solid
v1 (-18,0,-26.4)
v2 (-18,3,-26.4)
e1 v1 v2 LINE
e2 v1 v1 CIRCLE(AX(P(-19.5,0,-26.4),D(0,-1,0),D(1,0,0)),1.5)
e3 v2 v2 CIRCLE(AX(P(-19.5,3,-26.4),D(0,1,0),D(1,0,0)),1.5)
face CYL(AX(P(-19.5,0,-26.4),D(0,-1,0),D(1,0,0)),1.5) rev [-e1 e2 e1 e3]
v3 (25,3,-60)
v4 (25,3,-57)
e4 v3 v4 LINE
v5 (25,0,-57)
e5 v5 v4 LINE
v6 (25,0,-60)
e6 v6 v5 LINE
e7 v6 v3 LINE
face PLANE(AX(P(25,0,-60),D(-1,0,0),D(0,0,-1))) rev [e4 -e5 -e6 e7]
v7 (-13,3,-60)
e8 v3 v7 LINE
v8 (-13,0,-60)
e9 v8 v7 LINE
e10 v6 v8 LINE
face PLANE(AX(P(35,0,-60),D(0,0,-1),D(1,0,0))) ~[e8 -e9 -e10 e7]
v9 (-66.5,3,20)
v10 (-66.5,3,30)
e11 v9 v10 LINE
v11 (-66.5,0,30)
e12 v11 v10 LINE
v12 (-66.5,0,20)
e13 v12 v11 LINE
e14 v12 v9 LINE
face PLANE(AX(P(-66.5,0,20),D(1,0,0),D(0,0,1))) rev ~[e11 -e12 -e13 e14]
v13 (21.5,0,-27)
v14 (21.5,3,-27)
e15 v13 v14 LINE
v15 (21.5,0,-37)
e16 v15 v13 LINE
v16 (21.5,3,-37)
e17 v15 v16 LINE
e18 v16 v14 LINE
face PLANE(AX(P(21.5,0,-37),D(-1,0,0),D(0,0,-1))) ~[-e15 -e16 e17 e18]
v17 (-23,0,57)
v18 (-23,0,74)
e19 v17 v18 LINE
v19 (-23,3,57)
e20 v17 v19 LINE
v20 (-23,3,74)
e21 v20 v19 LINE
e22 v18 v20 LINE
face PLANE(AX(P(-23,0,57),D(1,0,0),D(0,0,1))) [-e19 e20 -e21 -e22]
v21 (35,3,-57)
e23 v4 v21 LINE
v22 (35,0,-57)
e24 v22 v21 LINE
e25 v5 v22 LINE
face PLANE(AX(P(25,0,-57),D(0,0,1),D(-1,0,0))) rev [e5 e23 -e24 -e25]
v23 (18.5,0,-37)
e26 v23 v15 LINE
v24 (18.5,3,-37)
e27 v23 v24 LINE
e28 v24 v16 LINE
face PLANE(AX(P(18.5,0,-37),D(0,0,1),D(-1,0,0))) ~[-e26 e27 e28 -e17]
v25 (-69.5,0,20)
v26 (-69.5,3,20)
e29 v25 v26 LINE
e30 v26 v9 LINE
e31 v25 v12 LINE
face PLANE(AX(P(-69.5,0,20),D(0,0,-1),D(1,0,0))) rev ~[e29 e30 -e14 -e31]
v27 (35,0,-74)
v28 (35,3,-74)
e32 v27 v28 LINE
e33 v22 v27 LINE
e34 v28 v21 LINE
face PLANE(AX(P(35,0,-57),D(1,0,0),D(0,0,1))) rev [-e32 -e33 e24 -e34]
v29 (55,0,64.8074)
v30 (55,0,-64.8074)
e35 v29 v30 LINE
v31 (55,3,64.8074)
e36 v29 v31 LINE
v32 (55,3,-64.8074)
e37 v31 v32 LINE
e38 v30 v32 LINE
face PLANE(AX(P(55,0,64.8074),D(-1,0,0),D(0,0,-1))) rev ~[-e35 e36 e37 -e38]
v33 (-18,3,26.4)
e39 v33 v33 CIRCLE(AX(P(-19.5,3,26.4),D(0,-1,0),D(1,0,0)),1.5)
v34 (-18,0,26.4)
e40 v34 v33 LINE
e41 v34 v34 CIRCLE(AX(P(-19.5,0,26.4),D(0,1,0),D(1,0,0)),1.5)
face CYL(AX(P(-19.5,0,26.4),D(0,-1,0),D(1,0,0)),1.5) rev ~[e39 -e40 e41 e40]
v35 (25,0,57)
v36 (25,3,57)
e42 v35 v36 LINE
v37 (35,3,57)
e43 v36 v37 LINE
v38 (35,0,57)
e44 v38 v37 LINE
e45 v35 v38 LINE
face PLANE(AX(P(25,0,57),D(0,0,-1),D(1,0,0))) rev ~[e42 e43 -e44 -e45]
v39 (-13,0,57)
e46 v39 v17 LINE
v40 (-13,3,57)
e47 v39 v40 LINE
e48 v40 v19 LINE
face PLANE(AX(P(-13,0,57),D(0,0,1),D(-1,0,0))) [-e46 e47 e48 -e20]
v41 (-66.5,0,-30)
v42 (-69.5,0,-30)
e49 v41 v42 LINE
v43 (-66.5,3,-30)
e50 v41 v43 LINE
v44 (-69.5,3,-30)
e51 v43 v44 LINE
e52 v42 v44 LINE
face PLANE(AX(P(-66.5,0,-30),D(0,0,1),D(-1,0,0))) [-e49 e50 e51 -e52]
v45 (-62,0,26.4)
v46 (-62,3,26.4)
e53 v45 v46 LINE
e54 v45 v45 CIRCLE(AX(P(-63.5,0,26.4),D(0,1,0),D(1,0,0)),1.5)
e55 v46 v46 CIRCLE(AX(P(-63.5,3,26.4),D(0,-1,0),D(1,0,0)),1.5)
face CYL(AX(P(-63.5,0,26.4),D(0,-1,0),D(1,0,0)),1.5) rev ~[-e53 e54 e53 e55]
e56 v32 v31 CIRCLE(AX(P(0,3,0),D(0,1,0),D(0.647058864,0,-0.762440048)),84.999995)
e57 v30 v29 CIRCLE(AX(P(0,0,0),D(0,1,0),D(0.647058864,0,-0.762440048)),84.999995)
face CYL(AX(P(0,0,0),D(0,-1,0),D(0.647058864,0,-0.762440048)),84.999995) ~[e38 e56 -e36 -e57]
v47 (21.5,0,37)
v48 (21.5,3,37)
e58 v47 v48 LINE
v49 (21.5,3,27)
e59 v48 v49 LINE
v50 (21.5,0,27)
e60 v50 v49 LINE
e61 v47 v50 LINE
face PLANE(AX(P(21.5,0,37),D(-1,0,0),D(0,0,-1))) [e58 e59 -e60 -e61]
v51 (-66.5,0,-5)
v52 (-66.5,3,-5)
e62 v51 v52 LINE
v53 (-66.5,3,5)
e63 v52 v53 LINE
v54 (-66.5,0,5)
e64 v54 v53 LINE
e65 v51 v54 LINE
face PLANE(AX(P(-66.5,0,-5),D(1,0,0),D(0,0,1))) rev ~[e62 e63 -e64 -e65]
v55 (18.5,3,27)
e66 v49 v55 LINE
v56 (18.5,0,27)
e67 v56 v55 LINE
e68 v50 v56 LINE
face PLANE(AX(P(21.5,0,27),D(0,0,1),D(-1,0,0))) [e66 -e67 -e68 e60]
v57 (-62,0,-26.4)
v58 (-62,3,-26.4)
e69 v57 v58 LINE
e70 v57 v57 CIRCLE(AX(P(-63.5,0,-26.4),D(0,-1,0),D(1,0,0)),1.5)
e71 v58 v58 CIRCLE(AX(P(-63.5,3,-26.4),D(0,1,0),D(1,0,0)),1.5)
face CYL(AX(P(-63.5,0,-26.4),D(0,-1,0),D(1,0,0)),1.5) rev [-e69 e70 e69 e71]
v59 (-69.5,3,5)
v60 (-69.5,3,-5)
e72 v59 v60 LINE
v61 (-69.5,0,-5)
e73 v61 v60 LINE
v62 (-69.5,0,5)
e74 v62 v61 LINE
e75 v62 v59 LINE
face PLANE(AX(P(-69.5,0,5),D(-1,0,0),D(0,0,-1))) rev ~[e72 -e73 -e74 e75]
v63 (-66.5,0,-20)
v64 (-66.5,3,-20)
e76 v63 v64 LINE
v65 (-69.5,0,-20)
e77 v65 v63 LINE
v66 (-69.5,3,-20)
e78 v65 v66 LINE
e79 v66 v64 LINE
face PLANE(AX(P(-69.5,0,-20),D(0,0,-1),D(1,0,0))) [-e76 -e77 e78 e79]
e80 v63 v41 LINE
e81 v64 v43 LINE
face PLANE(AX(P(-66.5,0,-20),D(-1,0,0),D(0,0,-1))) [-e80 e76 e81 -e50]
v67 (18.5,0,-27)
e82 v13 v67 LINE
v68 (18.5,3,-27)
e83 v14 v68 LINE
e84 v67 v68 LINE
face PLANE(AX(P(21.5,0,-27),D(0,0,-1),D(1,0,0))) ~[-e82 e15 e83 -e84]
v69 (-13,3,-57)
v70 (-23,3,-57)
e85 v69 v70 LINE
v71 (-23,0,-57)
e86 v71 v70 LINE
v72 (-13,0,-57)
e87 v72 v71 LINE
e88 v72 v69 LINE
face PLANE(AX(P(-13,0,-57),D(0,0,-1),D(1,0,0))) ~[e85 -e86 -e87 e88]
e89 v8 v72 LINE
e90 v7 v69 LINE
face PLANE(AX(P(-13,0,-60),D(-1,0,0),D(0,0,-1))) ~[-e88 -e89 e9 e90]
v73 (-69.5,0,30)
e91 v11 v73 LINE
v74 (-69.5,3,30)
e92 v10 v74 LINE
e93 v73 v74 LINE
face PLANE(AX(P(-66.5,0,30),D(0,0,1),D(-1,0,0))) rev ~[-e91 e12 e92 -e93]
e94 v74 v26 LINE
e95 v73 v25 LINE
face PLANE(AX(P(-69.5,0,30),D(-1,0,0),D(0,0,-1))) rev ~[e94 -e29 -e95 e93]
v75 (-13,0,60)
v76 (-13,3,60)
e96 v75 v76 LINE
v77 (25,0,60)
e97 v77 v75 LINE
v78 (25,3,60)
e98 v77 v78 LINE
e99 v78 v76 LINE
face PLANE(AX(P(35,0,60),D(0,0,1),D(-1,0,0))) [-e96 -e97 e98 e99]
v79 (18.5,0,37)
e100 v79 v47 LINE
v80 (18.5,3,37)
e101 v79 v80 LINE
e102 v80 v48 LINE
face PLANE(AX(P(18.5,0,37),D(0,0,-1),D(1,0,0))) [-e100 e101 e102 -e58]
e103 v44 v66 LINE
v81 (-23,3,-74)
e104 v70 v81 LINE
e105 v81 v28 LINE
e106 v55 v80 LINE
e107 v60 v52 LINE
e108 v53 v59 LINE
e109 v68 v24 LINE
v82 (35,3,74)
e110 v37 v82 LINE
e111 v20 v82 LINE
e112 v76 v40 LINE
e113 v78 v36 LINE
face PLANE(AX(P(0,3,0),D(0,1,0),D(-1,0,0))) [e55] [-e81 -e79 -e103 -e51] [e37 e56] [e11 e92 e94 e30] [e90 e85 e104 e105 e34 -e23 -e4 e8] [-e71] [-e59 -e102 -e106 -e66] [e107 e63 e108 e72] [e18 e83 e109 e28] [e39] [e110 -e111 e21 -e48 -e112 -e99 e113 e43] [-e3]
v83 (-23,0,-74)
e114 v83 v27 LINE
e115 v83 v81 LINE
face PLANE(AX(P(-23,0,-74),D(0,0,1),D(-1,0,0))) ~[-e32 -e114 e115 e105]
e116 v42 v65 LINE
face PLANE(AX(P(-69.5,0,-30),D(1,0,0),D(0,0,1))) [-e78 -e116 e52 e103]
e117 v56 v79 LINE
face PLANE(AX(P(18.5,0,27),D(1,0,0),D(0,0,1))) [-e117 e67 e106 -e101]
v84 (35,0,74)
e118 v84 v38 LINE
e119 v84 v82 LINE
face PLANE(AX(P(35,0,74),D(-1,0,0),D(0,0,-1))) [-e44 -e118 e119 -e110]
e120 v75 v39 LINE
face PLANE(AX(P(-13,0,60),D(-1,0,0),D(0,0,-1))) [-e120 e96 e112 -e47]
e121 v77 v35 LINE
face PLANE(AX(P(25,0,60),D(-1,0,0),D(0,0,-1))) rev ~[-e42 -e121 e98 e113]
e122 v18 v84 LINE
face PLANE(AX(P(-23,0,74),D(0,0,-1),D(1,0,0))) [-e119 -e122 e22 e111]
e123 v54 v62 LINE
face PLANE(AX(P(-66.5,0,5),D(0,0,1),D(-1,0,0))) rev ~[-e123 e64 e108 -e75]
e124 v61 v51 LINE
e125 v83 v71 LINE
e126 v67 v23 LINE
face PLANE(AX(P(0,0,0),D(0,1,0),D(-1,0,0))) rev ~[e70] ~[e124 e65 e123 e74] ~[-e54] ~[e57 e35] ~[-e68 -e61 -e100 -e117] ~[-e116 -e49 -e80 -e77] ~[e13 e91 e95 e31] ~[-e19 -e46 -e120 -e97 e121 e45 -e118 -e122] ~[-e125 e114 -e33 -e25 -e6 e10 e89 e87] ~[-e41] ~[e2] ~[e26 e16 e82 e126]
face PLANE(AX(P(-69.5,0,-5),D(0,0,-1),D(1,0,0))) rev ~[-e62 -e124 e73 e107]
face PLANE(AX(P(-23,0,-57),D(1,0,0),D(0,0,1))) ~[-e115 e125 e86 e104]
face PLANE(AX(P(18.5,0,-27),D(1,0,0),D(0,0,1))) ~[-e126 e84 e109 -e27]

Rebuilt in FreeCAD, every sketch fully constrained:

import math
import FreeCAD as App
import Part
import Sketcher
Q = App.Units.Quantity

doc = App.newDocument("Part")
body = doc.addObject("PartDesign::Body", "Body")

sketch1 = body.newObject("Sketcher::SketchObject", "Sketch")
sketch1.AttachmentSupport = (doc.getObject("XZ_Plane"), [""])
sketch1.MapMode = "FlatFace"
sketch1.addGeometry(Part.LineSegment(App.Vector(55, 65, 0), App.Vector(55, -65, 0)), False)
sketch1.addGeometry(Part.ArcOfCircle(Part.Circle(App.Vector(0, 0, 0), App.Vector(0, 0, 1), 85), math.radians(50), math.radians(310)), False)
sketch1.addConstraint(Sketcher.Constraint("Coincident", 0, 1, 1, 1))
sketch1.addConstraint(Sketcher.Constraint("Coincident", 1, 2, 0, 2))
sketch1.addConstraint(Sketcher.Constraint("Vertical", 0))
sketch1.addConstraint(Sketcher.Constraint("Coincident", 1, 3, -1, 1))
sketch1.addConstraint(Sketcher.Constraint("Radius", 1, Q("85 mm")))
sketch1.addConstraint(Sketcher.Constraint("DistanceX", -1, 1, 0, 1, Q("55 mm")))
pad1 = body.newObject("PartDesign::Pad", "Pad")
pad1.Profile = sketch1
pad1.Length = 3
pad1.Reversed = True

sketch2 = body.newObject("Sketcher::SketchObject", "Sketch001")
sketch2.AttachmentSupport = (doc.getObject("XZ_Plane"), [""])
sketch2.MapMode = "FlatFace"
sketch2.addGeometry(Part.LineSegment(App.Vector(35, 74, 0), App.Vector(-23, 74, 0)), False)
sketch2.addGeometry(Part.LineSegment(App.Vector(-23, 74, 0), App.Vector(-23, 60, 0)), False)
sketch2.addGeometry(Part.LineSegment(App.Vector(-23, 60, 0), App.Vector(35, 60, 0)), False)
sketch2.addGeometry(Part.LineSegment(App.Vector(35, 60, 0), App.Vector(35, 74, 0)), False)
sketch2.addConstraint(Sketcher.Constraint("Coincident", 0, 2, 1, 1))
sketch2.addConstraint(Sketcher.Constraint("Coincident", 1, 2, 2, 1))
sketch2.addConstraint(Sketcher.Constraint("Coincident", 2, 2, 3, 1))
sketch2.addConstraint(Sketcher.Constraint("Coincident", 3, 2, 0, 1))
sketch2.addConstraint(Sketcher.Constraint("Horizontal", 0))
sketch2.addConstraint(Sketcher.Constraint("Vertical", 1))
sketch2.addConstraint(Sketcher.Constraint("Horizontal", 2))
sketch2.addConstraint(Sketcher.Constraint("Vertical", 3))
sketch2.addConstraint(Sketcher.Constraint("DistanceX", 0, 2, 0, 1, Q("58 mm")))
sketch2.addConstraint(Sketcher.Constraint("DistanceY", 1, 2, 1, 1, Q("14 mm")))
sketch2.addConstraint(Sketcher.Constraint("DistanceX", 0, 2, -1, 1, Q("23 mm")))
sketch2.addConstraint(Sketcher.Constraint("DistanceY", -1, 1, 0, 2, Q("74 mm")))
pocket1 = body.newObject("PartDesign::Pocket", "Pocket")
pocket1.Profile = sketch2
pocket1.Length = 3

sketch3 = body.newObject("Sketcher::SketchObject", "Sketch002")
sketch3.AttachmentSupport = (doc.getObject("XZ_Plane"), [""])
sketch3.MapMode = "FlatFace"
sketch3.addGeometry(Part.LineSegment(App.Vector(-13, 60, 0), App.Vector(-23, 60, 0)), False)
sketch3.addGeometry(Part.LineSegment(App.Vector(-23, 60, 0), App.Vector(-23, 57, 0)), False)
sketch3.addGeometry(Part.LineSegment(App.Vector(-23, 57, 0), App.Vector(-13, 57, 0)), False)
sketch3.addGeometry(Part.LineSegment(App.Vector(-13, 57, 0), App.Vector(-13, 60, 0)), False)
sketch3.addGeometry(Part.LineSegment(App.Vector(35, 57, 0), App.Vector(35, 60, 0)), False)
sketch3.addGeometry(Part.LineSegment(App.Vector(35, 60, 0), App.Vector(25, 60, 0)), False)
sketch3.addGeometry(Part.LineSegment(App.Vector(25, 60, 0), App.Vector(25, 57, 0)), False)
sketch3.addGeometry(Part.LineSegment(App.Vector(25, 57, 0), App.Vector(35, 57, 0)), False)
sketch3.addConstraint(Sketcher.Constraint("Coincident", 0, 2, 1, 1))
sketch3.addConstraint(Sketcher.Constraint("Coincident", 1, 2, 2, 1))
sketch3.addConstraint(Sketcher.Constraint("Coincident", 2, 2, 3, 1))
sketch3.addConstraint(Sketcher.Constraint("Coincident", 3, 2, 0, 1))
sketch3.addConstraint(Sketcher.Constraint("Coincident", 4, 2, 5, 1))
sketch3.addConstraint(Sketcher.Constraint("Coincident", 5, 2, 6, 1))
sketch3.addConstraint(Sketcher.Constraint("Coincident", 6, 2, 7, 1))
sketch3.addConstraint(Sketcher.Constraint("Coincident", 7, 2, 4, 1))
sketch3.addConstraint(Sketcher.Constraint("Horizontal", 0))
sketch3.addConstraint(Sketcher.Constraint("Vertical", 1))
sketch3.addConstraint(Sketcher.Constraint("Horizontal", 2))
sketch3.addConstraint(Sketcher.Constraint("Vertical", 3))
sketch3.addConstraint(Sketcher.Constraint("Vertical", 4))
sketch3.addConstraint(Sketcher.Constraint("Horizontal", 5))
sketch3.addConstraint(Sketcher.Constraint("Vertical", 6))
sketch3.addConstraint(Sketcher.Constraint("Horizontal", 7))
sketch3.addConstraint(Sketcher.Constraint("Horizontal", 3, 2, 4, 2))
sketch3.addConstraint(Sketcher.Constraint("Horizontal", 2, 2, 6, 2))
sketch3.addConstraint(Sketcher.Constraint("Equal", 2, 5))
sketch3.addConstraint(Sketcher.Constraint("DistanceX", 0, 2, 0, 1, Q("10 mm")))
sketch3.addConstraint(Sketcher.Constraint("DistanceY", 1, 2, 1, 1, Q("3 mm")))
sketch3.addConstraint(Sketcher.Constraint("DistanceX", 0, 2, -1, 1, Q("23 mm")))
sketch3.addConstraint(Sketcher.Constraint("DistanceY", -1, 1, 0, 2, Q("60 mm")))
sketch3.addConstraint(Sketcher.Constraint("DistanceX", -1, 1, 4, 2, Q("35 mm")))
pocket2 = body.newObject("PartDesign::Pocket", "Pocket001")
pocket2.Profile = sketch3
pocket2.Length = 3

sketch4 = body.newObject("Sketcher::SketchObject", "Sketch003")
sketch4.AttachmentSupport = (doc.getObject("XZ_Plane"), [""])
sketch4.MapMode = "FlatFace"
sketch4.addGeometry(Part.LineSegment(App.Vector(21.5, 37, 0), App.Vector(18.5, 37, 0)), False)
sketch4.addGeometry(Part.LineSegment(App.Vector(18.5, 37, 0), App.Vector(18.5, 27, 0)), False)
sketch4.addGeometry(Part.LineSegment(App.Vector(18.5, 27, 0), App.Vector(21.5, 27, 0)), False)
sketch4.addGeometry(Part.LineSegment(App.Vector(21.5, 27, 0), App.Vector(21.5, 37, 0)), False)
sketch4.addConstraint(Sketcher.Constraint("Coincident", 0, 2, 1, 1))
sketch4.addConstraint(Sketcher.Constraint("Coincident", 1, 2, 2, 1))
sketch4.addConstraint(Sketcher.Constraint("Coincident", 2, 2, 3, 1))
sketch4.addConstraint(Sketcher.Constraint("Coincident", 3, 2, 0, 1))
sketch4.addConstraint(Sketcher.Constraint("Horizontal", 0))
sketch4.addConstraint(Sketcher.Constraint("Vertical", 1))
sketch4.addConstraint(Sketcher.Constraint("Horizontal", 2))
sketch4.addConstraint(Sketcher.Constraint("Vertical", 3))
sketch4.addConstraint(Sketcher.Constraint("DistanceX", 0, 2, 0, 1, Q("3 mm")))
sketch4.addConstraint(Sketcher.Constraint("DistanceY", 1, 2, 1, 1, Q("10 mm")))
sketch4.addConstraint(Sketcher.Constraint("DistanceY", -1, 1, 0, 2, Q("37 mm")))
sketch4.addConstraint(Sketcher.Constraint("DistanceX", -1, 1, 0, 2, Q("18.5 mm")))
pocket3 = body.newObject("PartDesign::Pocket", "Pocket002")
pocket3.Profile = sketch4
pocket3.Length = 3

sketch5 = body.newObject("Sketcher::SketchObject", "Sketch004")
sketch5.AttachmentSupport = (doc.getObject("XZ_Plane"), [""])
sketch5.MapMode = "FlatFace"
sketch5.addGeometry(Part.LineSegment(App.Vector(-66.5, 20, 0), App.Vector(-66.5, 30, 0)), False)
sketch5.addGeometry(Part.LineSegment(App.Vector(-66.5, 30, 0), App.Vector(-69.5, 30, 0)), False)
sketch5.addGeometry(Part.LineSegment(App.Vector(-69.5, 30, 0), App.Vector(-69.5, 20, 0)), False)
sketch5.addGeometry(Part.LineSegment(App.Vector(-69.5, 20, 0), App.Vector(-66.5, 20, 0)), False)
sketch5.addGeometry(Part.LineSegment(App.Vector(-66.5, -5, 0), App.Vector(-66.5, 5, 0)), False)
sketch5.addGeometry(Part.LineSegment(App.Vector(-66.5, 5, 0), App.Vector(-69.5, 5, 0)), False)
sketch5.addGeometry(Part.LineSegment(App.Vector(-69.5, 5, 0), App.Vector(-69.5, -5, 0)), False)
sketch5.addGeometry(Part.LineSegment(App.Vector(-69.5, -5, 0), App.Vector(-66.5, -5, 0)), False)
sketch5.addGeometry(Part.LineSegment(App.Vector(-69.5, -30, 0), App.Vector(-66.5, -30, 0)), False)
sketch5.addGeometry(Part.LineSegment(App.Vector(-66.5, -30, 0), App.Vector(-66.5, -20, 0)), False)
sketch5.addGeometry(Part.LineSegment(App.Vector(-66.5, -20, 0), App.Vector(-69.5, -20, 0)), False)
sketch5.addGeometry(Part.LineSegment(App.Vector(-69.5, -20, 0), App.Vector(-69.5, -30, 0)), False)
sketch5.addConstraint(Sketcher.Constraint("Coincident", 0, 2, 1, 1))
sketch5.addConstraint(Sketcher.Constraint("Coincident", 1, 2, 2, 1))
sketch5.addConstraint(Sketcher.Constraint("Coincident", 2, 2, 3, 1))
sketch5.addConstraint(Sketcher.Constraint("Coincident", 3, 2, 0, 1))
sketch5.addConstraint(Sketcher.Constraint("Coincident", 4, 2, 5, 1))
sketch5.addConstraint(Sketcher.Constraint("Coincident", 5, 2, 6, 1))
sketch5.addConstraint(Sketcher.Constraint("Coincident", 6, 2, 7, 1))
sketch5.addConstraint(Sketcher.Constraint("Coincident", 7, 2, 4, 1))
sketch5.addConstraint(Sketcher.Constraint("Coincident", 8, 2, 9, 1))
sketch5.addConstraint(Sketcher.Constraint("Coincident", 9, 2, 10, 1))
sketch5.addConstraint(Sketcher.Constraint("Coincident", 10, 2, 11, 1))
sketch5.addConstraint(Sketcher.Constraint("Coincident", 11, 2, 8, 1))
sketch5.addConstraint(Sketcher.Constraint("Vertical", 0))
sketch5.addConstraint(Sketcher.Constraint("Horizontal", 1))
sketch5.addConstraint(Sketcher.Constraint("Vertical", 2))
sketch5.addConstraint(Sketcher.Constraint("Horizontal", 3))
sketch5.addConstraint(Sketcher.Constraint("Vertical", 4))
sketch5.addConstraint(Sketcher.Constraint("Horizontal", 5))
sketch5.addConstraint(Sketcher.Constraint("Vertical", 6))
sketch5.addConstraint(Sketcher.Constraint("Horizontal", 7))
sketch5.addConstraint(Sketcher.Constraint("Horizontal", 8))
sketch5.addConstraint(Sketcher.Constraint("Vertical", 9))
sketch5.addConstraint(Sketcher.Constraint("Horizontal", 10))
sketch5.addConstraint(Sketcher.Constraint("Vertical", 11))
sketch5.addConstraint(Sketcher.Constraint("Symmetric", 0, 2, 8, 2, -1))
sketch5.addConstraint(Sketcher.Constraint("Symmetric", 2, 2, 10, 2, -1))
sketch5.addConstraint(Sketcher.Constraint("Vertical", 3, 2, 4, 2))
sketch5.addConstraint(Sketcher.Constraint("Vertical", 2, 2, 5, 2))
sketch5.addConstraint(Sketcher.Constraint("Equal", 2, 4))
sketch5.addConstraint(Sketcher.Constraint("DistanceX", 1, 2, 1, 1, Q("3 mm")))
sketch5.addConstraint(Sketcher.Constraint("DistanceY", 0, 1, 0, 2, Q("10 mm")))
sketch5.addConstraint(Sketcher.Constraint("DistanceY", -1, 1, 0, 2, Q("30 mm")))
sketch5.addConstraint(Sketcher.Constraint("DistanceY", -1, 1, 4, 2, Q("5 mm")))
sketch5.addConstraint(Sketcher.Constraint("DistanceX", 0, 2, -1, 1, Q("66.5 mm")))
pocket4 = body.newObject("PartDesign::Pocket", "Pocket003")
pocket4.Profile = sketch5
pocket4.Length = 3

sketch6 = body.newObject("Sketcher::SketchObject", "Sketch005")
sketch6.AttachmentSupport = (doc.getObject("XZ_Plane"), [""])
sketch6.MapMode = "FlatFace"
sketch6.addGeometry(Part.Circle(App.Vector(-63.5, 26.4, 0), App.Vector(0, 0, 1), 1.5), False)
sketch6.addGeometry(Part.Circle(App.Vector(-19.5, 26.4, 0), App.Vector(0, 0, 1), 1.5), False)
sketch6.addConstraint(Sketcher.Constraint("Equal", 0, 1))
sketch6.addConstraint(Sketcher.Constraint("Horizontal", 0, 3, 1, 3))
sketch6.addConstraint(Sketcher.Constraint("Diameter", 0, Q("3 mm")))
sketch6.addConstraint(Sketcher.Constraint("DistanceX", 0, 3, 1, 3, Q("44 mm")))
sketch6.addConstraint(Sketcher.Constraint("DistanceX", 0, 3, -1, 1, Q("63.5 mm")))
sketch6.addConstraint(Sketcher.Constraint("DistanceY", -1, 1, 0, 3, Q("26.4 mm")))
pocket5 = body.newObject("PartDesign::Pocket", "Pocket004")
pocket5.Profile = sketch6
pocket5.Length = 3
doc.recompute()

mirrored = body.newObject("PartDesign::Mirrored", "Mirrored")
mirrored.Originals = [pocket1, pocket2, pocket3, pocket5]
mirrored.MirrorPlane = (doc.getObject("XY_Plane"), [""])
body.Tip = mirrored

doc.recompute()
